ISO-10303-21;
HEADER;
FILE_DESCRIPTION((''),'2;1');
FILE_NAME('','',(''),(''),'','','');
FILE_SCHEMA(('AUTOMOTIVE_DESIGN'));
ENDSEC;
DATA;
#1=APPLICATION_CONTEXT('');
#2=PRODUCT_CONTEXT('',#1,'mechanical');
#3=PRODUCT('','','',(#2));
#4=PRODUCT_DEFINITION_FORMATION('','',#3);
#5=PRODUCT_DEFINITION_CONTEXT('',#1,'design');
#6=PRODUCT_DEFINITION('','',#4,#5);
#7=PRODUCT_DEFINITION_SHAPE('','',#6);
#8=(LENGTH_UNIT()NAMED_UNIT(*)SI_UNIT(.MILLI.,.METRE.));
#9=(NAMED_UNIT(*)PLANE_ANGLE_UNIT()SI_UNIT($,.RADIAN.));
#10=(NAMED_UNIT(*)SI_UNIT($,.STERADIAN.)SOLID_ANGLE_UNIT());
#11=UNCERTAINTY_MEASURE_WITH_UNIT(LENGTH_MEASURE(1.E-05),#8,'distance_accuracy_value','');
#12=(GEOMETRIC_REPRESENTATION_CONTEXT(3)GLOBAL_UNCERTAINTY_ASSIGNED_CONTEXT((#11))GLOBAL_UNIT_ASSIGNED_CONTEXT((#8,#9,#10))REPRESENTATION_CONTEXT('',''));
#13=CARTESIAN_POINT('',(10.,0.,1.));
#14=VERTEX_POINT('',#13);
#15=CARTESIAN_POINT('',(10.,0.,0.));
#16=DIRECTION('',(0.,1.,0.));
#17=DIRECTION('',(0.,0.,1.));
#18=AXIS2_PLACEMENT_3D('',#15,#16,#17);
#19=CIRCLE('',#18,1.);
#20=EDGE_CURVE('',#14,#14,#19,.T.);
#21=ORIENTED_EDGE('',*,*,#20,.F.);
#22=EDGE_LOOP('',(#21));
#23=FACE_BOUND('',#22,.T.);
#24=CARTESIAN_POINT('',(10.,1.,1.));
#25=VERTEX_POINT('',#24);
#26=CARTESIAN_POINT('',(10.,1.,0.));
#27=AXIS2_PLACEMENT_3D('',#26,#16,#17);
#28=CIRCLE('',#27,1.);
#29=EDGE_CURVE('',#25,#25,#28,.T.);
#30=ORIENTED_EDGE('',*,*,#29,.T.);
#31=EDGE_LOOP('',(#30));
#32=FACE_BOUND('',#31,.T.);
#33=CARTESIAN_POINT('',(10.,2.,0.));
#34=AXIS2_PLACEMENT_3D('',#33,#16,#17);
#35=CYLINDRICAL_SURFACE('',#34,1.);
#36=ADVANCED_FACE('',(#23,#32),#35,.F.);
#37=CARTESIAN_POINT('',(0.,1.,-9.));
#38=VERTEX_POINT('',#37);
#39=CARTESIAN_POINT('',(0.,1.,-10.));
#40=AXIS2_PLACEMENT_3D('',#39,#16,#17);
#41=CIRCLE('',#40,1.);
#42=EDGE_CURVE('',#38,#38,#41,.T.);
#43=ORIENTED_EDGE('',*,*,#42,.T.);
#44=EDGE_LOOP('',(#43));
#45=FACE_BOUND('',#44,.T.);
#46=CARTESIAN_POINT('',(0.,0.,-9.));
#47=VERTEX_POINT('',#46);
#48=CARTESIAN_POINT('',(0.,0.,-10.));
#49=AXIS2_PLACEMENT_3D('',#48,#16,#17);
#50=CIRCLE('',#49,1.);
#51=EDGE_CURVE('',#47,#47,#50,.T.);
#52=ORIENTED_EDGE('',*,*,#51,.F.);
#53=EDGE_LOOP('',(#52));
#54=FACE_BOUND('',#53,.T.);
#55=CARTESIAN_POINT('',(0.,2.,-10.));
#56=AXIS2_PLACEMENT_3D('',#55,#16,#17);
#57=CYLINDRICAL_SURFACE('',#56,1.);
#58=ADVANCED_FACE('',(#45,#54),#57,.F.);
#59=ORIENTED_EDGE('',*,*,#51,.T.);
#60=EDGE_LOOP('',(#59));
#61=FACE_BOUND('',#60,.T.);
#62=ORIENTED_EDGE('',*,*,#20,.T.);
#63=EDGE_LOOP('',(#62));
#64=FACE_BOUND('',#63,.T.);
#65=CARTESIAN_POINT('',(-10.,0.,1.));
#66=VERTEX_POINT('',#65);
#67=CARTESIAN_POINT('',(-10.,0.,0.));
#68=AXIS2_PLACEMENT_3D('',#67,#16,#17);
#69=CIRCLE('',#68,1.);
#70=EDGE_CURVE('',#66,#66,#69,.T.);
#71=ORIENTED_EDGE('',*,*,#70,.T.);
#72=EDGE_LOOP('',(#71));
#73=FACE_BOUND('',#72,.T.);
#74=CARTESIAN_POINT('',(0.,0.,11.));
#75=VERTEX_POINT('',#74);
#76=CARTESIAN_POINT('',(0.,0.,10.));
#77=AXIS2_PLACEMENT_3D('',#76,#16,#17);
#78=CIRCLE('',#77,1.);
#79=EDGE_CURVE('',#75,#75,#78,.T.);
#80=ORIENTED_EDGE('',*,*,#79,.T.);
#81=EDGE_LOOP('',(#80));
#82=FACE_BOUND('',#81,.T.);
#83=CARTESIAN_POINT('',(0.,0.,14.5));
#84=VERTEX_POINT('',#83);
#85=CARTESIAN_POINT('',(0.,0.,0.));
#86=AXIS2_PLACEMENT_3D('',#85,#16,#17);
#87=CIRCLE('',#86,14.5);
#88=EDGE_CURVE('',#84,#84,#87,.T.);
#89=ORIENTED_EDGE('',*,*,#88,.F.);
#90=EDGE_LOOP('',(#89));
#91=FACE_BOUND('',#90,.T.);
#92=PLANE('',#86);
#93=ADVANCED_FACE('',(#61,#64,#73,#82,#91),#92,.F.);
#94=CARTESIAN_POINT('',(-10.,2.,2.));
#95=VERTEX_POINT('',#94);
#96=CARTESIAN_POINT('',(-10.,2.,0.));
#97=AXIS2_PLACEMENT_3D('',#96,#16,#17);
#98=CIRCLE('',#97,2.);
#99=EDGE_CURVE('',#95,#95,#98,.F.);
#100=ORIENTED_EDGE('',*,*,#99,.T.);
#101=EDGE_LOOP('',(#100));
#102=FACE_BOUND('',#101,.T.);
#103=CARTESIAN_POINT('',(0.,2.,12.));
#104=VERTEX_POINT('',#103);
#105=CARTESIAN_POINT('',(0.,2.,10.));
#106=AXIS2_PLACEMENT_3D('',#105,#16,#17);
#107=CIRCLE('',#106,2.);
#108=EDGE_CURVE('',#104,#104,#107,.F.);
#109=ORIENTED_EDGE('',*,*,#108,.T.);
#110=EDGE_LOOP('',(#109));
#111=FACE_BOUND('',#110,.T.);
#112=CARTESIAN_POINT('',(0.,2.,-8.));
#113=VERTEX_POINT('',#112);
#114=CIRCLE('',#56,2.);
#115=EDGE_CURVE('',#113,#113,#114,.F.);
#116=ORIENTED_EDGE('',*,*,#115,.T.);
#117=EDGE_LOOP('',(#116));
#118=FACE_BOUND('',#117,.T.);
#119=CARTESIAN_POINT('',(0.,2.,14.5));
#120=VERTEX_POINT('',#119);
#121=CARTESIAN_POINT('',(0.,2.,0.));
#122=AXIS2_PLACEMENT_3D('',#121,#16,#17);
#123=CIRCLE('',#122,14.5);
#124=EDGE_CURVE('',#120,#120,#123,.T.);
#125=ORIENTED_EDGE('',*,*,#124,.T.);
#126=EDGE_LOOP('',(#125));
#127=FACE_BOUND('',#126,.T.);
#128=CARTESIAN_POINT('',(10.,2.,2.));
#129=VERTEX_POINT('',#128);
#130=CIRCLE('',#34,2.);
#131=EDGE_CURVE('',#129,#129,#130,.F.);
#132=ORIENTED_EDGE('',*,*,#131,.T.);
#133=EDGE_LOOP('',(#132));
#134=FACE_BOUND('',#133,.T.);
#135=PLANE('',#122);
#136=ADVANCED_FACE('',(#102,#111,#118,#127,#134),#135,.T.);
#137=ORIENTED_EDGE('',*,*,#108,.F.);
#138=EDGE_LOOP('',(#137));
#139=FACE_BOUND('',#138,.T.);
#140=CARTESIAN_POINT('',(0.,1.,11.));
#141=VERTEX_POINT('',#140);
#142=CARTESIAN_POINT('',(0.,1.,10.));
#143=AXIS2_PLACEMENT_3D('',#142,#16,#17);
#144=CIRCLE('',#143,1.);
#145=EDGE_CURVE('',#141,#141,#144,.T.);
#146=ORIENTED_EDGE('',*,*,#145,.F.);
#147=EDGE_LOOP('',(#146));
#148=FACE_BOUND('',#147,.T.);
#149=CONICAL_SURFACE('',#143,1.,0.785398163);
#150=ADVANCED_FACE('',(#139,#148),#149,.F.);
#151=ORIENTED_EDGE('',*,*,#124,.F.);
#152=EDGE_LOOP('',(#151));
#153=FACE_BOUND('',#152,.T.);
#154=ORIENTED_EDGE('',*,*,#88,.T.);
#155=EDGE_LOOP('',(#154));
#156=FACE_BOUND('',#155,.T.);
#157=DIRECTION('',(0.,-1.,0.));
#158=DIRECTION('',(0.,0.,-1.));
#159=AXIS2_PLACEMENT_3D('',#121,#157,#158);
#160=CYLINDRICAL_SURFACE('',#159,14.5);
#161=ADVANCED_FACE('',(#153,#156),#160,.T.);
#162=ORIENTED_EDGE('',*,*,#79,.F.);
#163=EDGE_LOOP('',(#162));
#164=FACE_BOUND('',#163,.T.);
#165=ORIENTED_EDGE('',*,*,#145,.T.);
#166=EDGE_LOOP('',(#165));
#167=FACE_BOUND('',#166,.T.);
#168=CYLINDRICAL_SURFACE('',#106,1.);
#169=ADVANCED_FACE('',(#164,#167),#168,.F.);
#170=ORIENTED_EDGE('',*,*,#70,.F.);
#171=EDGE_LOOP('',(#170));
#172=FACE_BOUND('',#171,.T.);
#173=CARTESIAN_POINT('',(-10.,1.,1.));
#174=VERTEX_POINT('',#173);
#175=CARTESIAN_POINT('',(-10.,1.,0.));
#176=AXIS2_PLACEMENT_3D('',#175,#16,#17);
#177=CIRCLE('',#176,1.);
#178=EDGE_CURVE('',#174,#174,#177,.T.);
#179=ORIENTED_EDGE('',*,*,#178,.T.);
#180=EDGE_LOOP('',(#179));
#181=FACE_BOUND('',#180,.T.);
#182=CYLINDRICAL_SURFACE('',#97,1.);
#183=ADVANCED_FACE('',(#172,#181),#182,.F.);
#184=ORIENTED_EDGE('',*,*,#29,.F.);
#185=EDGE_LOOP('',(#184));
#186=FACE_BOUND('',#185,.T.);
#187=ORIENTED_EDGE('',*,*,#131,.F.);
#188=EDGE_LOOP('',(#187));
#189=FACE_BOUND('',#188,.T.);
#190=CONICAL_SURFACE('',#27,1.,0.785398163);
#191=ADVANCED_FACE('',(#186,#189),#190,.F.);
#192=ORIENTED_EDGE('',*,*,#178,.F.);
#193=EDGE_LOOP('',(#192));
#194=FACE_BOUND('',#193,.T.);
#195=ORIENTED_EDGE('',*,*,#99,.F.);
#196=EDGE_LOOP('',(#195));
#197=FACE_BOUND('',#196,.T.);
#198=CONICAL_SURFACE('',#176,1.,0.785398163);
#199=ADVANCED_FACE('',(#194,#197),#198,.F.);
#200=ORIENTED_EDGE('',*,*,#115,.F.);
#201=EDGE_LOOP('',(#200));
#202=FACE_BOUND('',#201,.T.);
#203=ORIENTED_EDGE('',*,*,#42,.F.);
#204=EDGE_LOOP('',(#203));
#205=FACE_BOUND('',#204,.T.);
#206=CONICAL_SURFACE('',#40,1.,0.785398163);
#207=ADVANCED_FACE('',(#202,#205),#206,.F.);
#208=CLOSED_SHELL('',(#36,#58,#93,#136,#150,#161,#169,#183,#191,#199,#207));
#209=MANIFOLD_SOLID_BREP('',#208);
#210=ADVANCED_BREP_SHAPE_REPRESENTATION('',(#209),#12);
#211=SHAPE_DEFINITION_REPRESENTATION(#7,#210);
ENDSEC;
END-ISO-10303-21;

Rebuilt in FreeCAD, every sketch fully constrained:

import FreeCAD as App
import Part
import Sketcher
from FreeCAD import Vector
Q = App.Units.Quantity


def edges_at(feature, points):
    """Names of the edges that pass closest to the given points."""
    edges = feature.Shape.Edges
    near = lambda p: min(range(len(edges)), key=lambda i: edges[i].distToShape(Part.Vertex(*p))[0])
    return sorted({f"Edge{near(p) + 1}" for p in points})

doc = App.newDocument("Part")
body = doc.addObject("PartDesign::Body", "Body")

# Sketch on XZ plane
sketch1 = body.newObject("Sketcher::SketchObject", "Sketch")
sketch1.AttachmentSupport = (doc.getObject("XZ_Plane"), [""])
sketch1.MapMode = "FlatFace"
sketch1.addGeometry(Part.Circle(Vector(0, 0, 0), Vector(0, 0, 1), 14), False)
sketch1.addConstraint([
    Sketcher.Constraint("Coincident", 0, 3, -1, 1),
    Sketcher.Constraint("Diameter", 0, Q("29 mm")),
])
pad1 = body.newObject("PartDesign::Pad", "Pad")
pad1.Profile = sketch1
pad1.Length = 2
pad1.Reversed = True

# Sketch on XZ plane
sketch2 = body.newObject("Sketcher::SketchObject", "Sketch001")
sketch2.AttachmentSupport = (doc.getObject("XZ_Plane"), [""])
sketch2.MapMode = "FlatFace"
sketch2.AttachmentOffset = App.Placement(Vector(0, 0, -2), App.Rotation())
sketch2.addGeometry([
    Part.Circle(Vector(-10, 0, 0), Vector(0, 0, 1), 1),
    Part.Circle(Vector(0, -10, 0), Vector(0, 0, 1), 1),
    Part.Circle(Vector(10, 0, 0), Vector(0, 0, 1), 1),
    Part.Circle(Vector(0, 10, 0), Vector(0, 0, 1), 1),
], False)
sketch2.addConstraint([
    Sketcher.Constraint("Equal", 0, 1),
    Sketcher.Constraint("Equal", 1, 2),
    Sketcher.Constraint("Equal", 2, 3),
    Sketcher.Constraint("Symmetric", 0, 3, 2, 3, -1, 1),
    Sketcher.Constraint("Symmetric", 1, 3, 3, 3, -1, 1),
    Sketcher.Constraint("PointOnObject", 0, 3, -1),
    Sketcher.Constraint("PointOnObject", 1, 3, -2),
    Sketcher.Constraint("Diameter", 0, Q("2 mm")),
    Sketcher.Constraint("DistanceX", 0, 3, -1, 1, Q("10 mm")),
    Sketcher.Constraint("DistanceY", 1, 3, -1, 1, Q("10 mm")),
])
doc.recompute()
hole = body.newObject("PartDesign::Hole", "Hole")
hole.Profile = sketch2
hole.ThreadType = "None"
hole.Diameter = 2
hole.DepthType = "Dimension"
hole.Depth = 42.93
hole.DrillPoint = "Angled"
hole.DrillPointAngle = 118
hole.Reversed = True
doc.recompute()

chamfer = body.newObject("PartDesign::Chamfer", "Chamfer")
chamfer.Base = (hole, edges_at(hole, [
    (1, 2, 10),
    (11, 2, 0),
    (1, 2, -10),
    (-9, 2, 0),
]))
chamfer.Size = 1

doc.recompute()
